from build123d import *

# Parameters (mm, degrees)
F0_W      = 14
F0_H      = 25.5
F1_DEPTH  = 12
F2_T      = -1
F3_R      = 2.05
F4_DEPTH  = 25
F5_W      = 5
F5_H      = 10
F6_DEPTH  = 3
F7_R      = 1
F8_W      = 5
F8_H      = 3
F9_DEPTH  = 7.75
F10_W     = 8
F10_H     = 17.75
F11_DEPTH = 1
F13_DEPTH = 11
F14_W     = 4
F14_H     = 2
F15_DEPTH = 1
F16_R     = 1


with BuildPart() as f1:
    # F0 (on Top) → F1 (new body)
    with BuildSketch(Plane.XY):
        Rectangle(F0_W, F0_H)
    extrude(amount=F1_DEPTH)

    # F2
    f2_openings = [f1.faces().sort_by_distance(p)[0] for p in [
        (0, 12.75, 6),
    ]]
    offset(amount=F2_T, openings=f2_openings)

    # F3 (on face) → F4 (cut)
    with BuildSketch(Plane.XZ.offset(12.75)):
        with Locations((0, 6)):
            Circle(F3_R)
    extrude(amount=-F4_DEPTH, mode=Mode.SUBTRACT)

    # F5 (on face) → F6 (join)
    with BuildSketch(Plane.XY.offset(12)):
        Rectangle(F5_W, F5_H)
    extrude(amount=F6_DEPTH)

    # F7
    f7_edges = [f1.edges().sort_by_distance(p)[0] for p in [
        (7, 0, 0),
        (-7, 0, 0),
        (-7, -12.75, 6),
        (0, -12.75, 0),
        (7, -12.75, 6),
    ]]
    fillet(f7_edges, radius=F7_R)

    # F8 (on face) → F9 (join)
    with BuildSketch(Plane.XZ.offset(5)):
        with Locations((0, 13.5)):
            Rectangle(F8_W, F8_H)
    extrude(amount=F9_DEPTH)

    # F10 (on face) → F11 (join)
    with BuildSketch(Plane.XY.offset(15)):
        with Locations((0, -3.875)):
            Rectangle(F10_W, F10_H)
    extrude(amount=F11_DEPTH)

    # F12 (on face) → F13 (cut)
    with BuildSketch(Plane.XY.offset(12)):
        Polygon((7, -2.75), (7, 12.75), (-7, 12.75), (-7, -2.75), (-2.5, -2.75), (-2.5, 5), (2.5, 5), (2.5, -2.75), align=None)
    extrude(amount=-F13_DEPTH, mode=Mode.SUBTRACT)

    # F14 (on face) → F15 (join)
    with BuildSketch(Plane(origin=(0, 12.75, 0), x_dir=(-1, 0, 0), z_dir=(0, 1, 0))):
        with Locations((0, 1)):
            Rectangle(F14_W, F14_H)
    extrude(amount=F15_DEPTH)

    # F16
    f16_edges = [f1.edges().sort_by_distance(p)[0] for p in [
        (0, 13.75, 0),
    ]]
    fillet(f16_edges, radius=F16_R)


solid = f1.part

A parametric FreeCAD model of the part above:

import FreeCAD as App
import Part
import Sketcher

V = App.Vector


def edges_at(feature, points):
    """Names of the edges that pass closest to the given points."""
    edges = feature.Shape.Edges
    near = lambda p: min(range(len(edges)), key=lambda i: edges[i].distToShape(Part.Vertex(*p))[0])
    return sorted({f"Edge{near(p) + 1}" for p in points})


def faces_at(feature, points):
    """Names of the faces that lie closest to the given points."""
    faces = feature.Shape.Faces
    near = lambda p: min(range(len(faces)), key=lambda i: faces[i].distToShape(Part.Vertex(*p))[0])
    return sorted({f"Face{near(p) + 1}" for p in points})


def add_polygon(sketch, points):
    """Adds a closed chain of lines whose ends are joined by coincident constraints."""
    first, n = sketch.GeometryCount, len(points)
    for a, b in zip(points, points[1:] + points[:1]):
        sketch.addGeometry(Part.LineSegment(App.Vector(*a, 0), App.Vector(*b, 0)), False)
    for i in range(n):
        sketch.addConstraint(Sketcher.Constraint("Coincident", first + i, 2, first + (i + 1) % n, 1))

doc = App.newDocument("Part")
body = doc.addObject("PartDesign::Body", "Body")

# Sketch on XY plane
sketch1 = body.newObject("Sketcher::SketchObject", "Sketch")
sketch1.AttachmentSupport = (doc.getObject("XY_Plane"), [""])
sketch1.MapMode = "FlatFace"
add_polygon(sketch1, [(-7, 12.75), (-7, -12.75), (7, -12.75), (7, 12.75)])  # lines 0-3
sketch1.addConstraint([
    Sketcher.Constraint("Vertical", 0),
    Sketcher.Constraint("Horizontal", 1),
    Sketcher.Constraint("Vertical", 2),
    Sketcher.Constraint("Horizontal", 3),
    Sketcher.Constraint("Symmetric", 0, 2, 2, 2, -1, 1),
    Sketcher.Constraint("DistanceX", 1, 1, 1, 2, 14.0),
    Sketcher.Constraint("DistanceY", 0, 2, 0, 1, 25.5),
])
pad1 = body.newObject("PartDesign::Pad", "Pad")
pad1.Profile = sketch1
pad1.Length = 12
doc.recompute()

thickness = body.newObject("PartDesign::Thickness", "Thickness")
thickness.Base = (pad1, faces_at(pad1, [(0, 12.75, 6)]))
thickness.Value = 1
thickness.Reversed = True
thickness.Join = "Arc"

# Sketch on XZ plane
sketch2 = body.newObject("Sketcher::SketchObject", "Sketch001")
sketch2.AttachmentSupport = (doc.getObject("XZ_Plane"), [""])
sketch2.MapMode = "FlatFace"
sketch2.AttachmentOffset = App.Placement(V(0, 0, 12.75), App.Rotation())
sketch2.addGeometry(Part.Circle(V(0, 6, 0), V(0, 0, 1), 2.05), False)
sketch2.addConstraint([
    Sketcher.Constraint("PointOnObject", 0, 3, -2),
    Sketcher.Constraint("Diameter", 0, 4.1),
    Sketcher.Constraint("DistanceY", -1, 1, 0, 3, 6.0),
])
pocket1 = body.newObject("PartDesign::Pocket", "Pocket")
pocket1.Profile = sketch2
pocket1.Length = 25

# Sketch on XY plane
sketch3 = body.newObject("Sketcher::SketchObject", "Sketch002")
sketch3.AttachmentSupport = (doc.getObject("XY_Plane"), [""])
sketch3.MapMode = "FlatFace"
sketch3.AttachmentOffset = App.Placement(V(0, 0, 12), App.Rotation())
add_polygon(sketch3, [(-2.5, 5), (-2.5, -5), (2.5, -5), (2.5, 5)])  # lines 0-3
sketch3.addConstraint([
    Sketcher.Constraint("Vertical", 0),
    Sketcher.Constraint("Horizontal", 1),
    Sketcher.Constraint("Vertical", 2),
    Sketcher.Constraint("Horizontal", 3),
    Sketcher.Constraint("Symmetric", 0, 2, 2, 2, -1, 1),
    Sketcher.Constraint("DistanceX", 1, 1, 1, 2, 5.0),
    Sketcher.Constraint("DistanceY", 0, 2, 0, 1, 10.0),
])
pad2 = body.newObject("PartDesign::Pad", "Pad001")
pad2.Profile = sketch3
pad2.Length = 3
doc.recompute()

fillet = body.newObject("PartDesign::Fillet", "Fillet")
fillet.Base = (pad2, edges_at(pad2, [
    (7, 0, 0),
    (-7, 0, 0),
    (-7, -12.75, 6),
    (0, -12.75, 0),
    (7, -12.75, 6),
]))
fillet.Radius = 1

# Sketch on XZ plane
sketch4 = body.newObject("Sketcher::SketchObject", "Sketch003")
sketch4.AttachmentSupport = (doc.getObject("XZ_Plane"), [""])
sketch4.MapMode = "FlatFace"
sketch4.AttachmentOffset = App.Placement(V(0, 0, 5), App.Rotation())
add_polygon(sketch4, [(-2.5, 15), (-2.5, 12), (2.5, 12), (2.5, 15)])  # lines 0-3
sketch4.addConstraint([
    Sketcher.Constraint("Vertical", 0),
    Sketcher.Constraint("Horizontal", 1),
    Sketcher.Constraint("Vertical", 2),
    Sketcher.Constraint("Horizontal", 3),
    Sketcher.Constraint("DistanceX", 1, 1, 1, 2, 5.0),
    Sketcher.Constraint("DistanceY", 0, 2, 0, 1, 3.0),
    Sketcher.Constraint("DistanceY", -1, 1, 0, 2, 12.0),
    Sketcher.Constraint("DistanceX", 0, 2, -1, 1, 2.5),
])
pad3 = body.newObject("PartDesign::Pad", "Pad002")
pad3.Profile = sketch4
pad3.Length = 7.75

# Sketch on XY plane
sketch5 = body.newObject("Sketcher::SketchObject", "Sketch004")
sketch5.AttachmentSupport = (doc.getObject("XY_Plane"), [""])
sketch5.MapMode = "FlatFace"
sketch5.AttachmentOffset = App.Placement(V(0, 0, 15), App.Rotation())
add_polygon(sketch5, [(-4, 5), (-4, -12.75), (4, -12.75), (4, 5)])  # lines 0-3
sketch5.addConstraint([
    Sketcher.Constraint("Vertical", 0),
    Sketcher.Constraint("Horizontal", 1),
    Sketcher.Constraint("Vertical", 2),
    Sketcher.Constraint("Horizontal", 3),
    Sketcher.Constraint("DistanceX", 1, 1, 1, 2, 8.0),
    Sketcher.Constraint("DistanceX", 0, 2, -1, 1, 4.0),
    Sketcher.Constraint("DistanceY", -1, 1, 2, 2, 5.0),
    Sketcher.Constraint("DistanceY", 0, 2, 0, 1, 17.75),
])
pad4 = body.newObject("PartDesign::Pad", "Pad003")
pad4.Profile = sketch5
pad4.Length = 1

# Sketch on XY plane
sketch6 = body.newObject("Sketcher::SketchObject", "Sketch005")
sketch6.AttachmentSupport = (doc.getObject("XY_Plane"), [""])
sketch6.MapMode = "FlatFace"
sketch6.AttachmentOffset = App.Placement(V(0, 0, 12), App.Rotation())
add_polygon(sketch6, [(7, -2.75), (7, 12.75), (-7, 12.75), (-7, -2.75), (-2.5, -2.75), (-2.5, 5), (2.5, 5), (2.5, -2.75)])  # lines 0-7
sketch6.addConstraint([
    Sketcher.Constraint("Vertical", 0),
    Sketcher.Constraint("Horizontal", 1),
    Sketcher.Constraint("Vertical", 2),
    Sketcher.Constraint("Horizontal", 3),
    Sketcher.Constraint("Vertical", 4),
    Sketcher.Constraint("Horizontal", 5),
    Sketcher.Constraint("Vertical", 6),
    Sketcher.Constraint("Horizontal", 7),
    Sketcher.Constraint("Symmetric", 3, 2, 6, 2, -2),
    Sketcher.Constraint("Equal", 3, 7),
    Sketcher.Constraint("DistanceX", 1, 2, 1, 1, 14.0),
    Sketcher.Constraint("DistanceX", 5, 1, 5, 2, 5.0),
    Sketcher.Constraint("DistanceY", 0, 1, 0, 2, 15.5),
    Sketcher.Constraint("DistanceY", -1, 1, 4, 2, 5.0),
    Sketcher.Constraint("DistanceY", 4, 1, 4, 2, 7.75),
])
pocket2 = body.newObject("PartDesign::Pocket", "Pocket001")
pocket2.Profile = sketch6
pocket2.Length = 11

# Sketch on XZ plane
sketch7 = body.newObject("Sketcher::SketchObject", "Sketch006")
sketch7.AttachmentSupport = (doc.getObject("XZ_Plane"), [""])
sketch7.MapMode = "FlatFace"
sketch7.AttachmentOffset = App.Placement(V(0, 0, -12.75), App.Rotation())
add_polygon(sketch7, [(2, 2), (2, 0), (-2, 0), (-2, 2)])  # lines 0-3
sketch7.addConstraint([
    Sketcher.Constraint("Vertical", 0),
    Sketcher.Constraint("Horizontal", 1),
    Sketcher.Constraint("Vertical", 2),
    Sketcher.Constraint("Horizontal", 3),
    Sketcher.Constraint("Symmetric", 0, 2, 1, 2, -1, 1),
    Sketcher.Constraint("DistanceX", 1, 2, 1, 1, 4.0),
    Sketcher.Constraint("DistanceY", 0, 2, 0, 1, 2.0),
])
pad5 = body.newObject("PartDesign::Pad", "Pad004")
pad5.Profile = sketch7
pad5.Length = 1
pad5.Reversed = True
doc.recompute()

fillet2 = body.newObject("PartDesign::Fillet", "Fillet001")
fillet2.Base = (pad5, edges_at(pad5, [(0, 13.75, 0)]))
fillet2.Radius = 1

doc.recompute()
